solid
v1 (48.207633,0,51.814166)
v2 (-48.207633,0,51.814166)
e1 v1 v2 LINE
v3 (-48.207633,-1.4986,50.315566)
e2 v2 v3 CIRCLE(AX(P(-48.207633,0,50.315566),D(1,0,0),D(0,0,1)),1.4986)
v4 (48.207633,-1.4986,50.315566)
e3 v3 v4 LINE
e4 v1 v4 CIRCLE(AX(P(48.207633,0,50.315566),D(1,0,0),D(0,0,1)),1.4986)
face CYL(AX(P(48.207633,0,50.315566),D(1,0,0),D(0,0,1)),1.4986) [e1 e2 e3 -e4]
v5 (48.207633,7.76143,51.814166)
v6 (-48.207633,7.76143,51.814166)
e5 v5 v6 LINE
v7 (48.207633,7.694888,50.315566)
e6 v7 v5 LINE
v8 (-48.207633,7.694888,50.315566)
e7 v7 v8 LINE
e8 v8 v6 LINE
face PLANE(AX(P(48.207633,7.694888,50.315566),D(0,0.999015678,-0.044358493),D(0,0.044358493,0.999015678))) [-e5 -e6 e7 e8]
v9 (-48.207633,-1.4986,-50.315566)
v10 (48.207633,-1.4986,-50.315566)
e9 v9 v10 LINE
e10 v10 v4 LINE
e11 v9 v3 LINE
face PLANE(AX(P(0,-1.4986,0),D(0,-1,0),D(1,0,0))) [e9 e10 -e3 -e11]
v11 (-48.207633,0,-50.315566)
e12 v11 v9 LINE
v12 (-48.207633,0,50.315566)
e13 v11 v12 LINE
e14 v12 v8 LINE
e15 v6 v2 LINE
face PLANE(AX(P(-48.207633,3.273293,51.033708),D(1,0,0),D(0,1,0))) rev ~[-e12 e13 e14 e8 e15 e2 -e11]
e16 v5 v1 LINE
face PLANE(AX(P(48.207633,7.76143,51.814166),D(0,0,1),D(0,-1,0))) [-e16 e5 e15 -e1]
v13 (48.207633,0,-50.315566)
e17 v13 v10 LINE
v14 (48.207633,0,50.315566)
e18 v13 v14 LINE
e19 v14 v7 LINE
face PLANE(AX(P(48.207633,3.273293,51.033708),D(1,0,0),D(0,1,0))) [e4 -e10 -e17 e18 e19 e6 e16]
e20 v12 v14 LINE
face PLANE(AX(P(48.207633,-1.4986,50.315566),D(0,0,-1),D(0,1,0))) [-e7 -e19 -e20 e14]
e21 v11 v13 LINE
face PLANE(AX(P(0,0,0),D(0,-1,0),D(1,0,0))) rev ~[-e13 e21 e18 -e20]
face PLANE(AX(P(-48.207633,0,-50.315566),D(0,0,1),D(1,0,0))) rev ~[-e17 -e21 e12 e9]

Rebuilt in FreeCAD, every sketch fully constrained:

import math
import FreeCAD as App
import Part
import Sketcher
Q = App.Units.Quantity

doc = App.newDocument("Part")
body = doc.addObject("PartDesign::Body", "Body")

# Sketch on XZ plane
sketch1 = doc.addObject("Sketcher::SketchObject", "Sketch")
body.addObject(sketch1)
sketch1.AttachmentSupport = (doc.XZ_Plane, [""])
sketch1.MapMode = "FlatFace"
sketch1.addGeometry([
    Part.LineSegment(App.Vector(-48, 50, 0), App.Vector(-48, -50, 0)),
    Part.LineSegment(App.Vector(-48, -50, 0), App.Vector(48, -50, 0)),
    Part.LineSegment(App.Vector(48, -50, 0), App.Vector(48, 50, 0)),
    Part.LineSegment(App.Vector(48, 50, 0), App.Vector(-48, 50, 0)),
], False)
sketch1.addConstraint([
    Sketcher.Constraint("Coincident", 0, 2, 1, 1),
    Sketcher.Constraint("Coincident", 1, 2, 2, 1),
    Sketcher.Constraint("Coincident", 2, 2, 3, 1),
    Sketcher.Constraint("Coincident", 3, 2, 0, 1),
    Sketcher.Constraint("Vertical", 0),
    Sketcher.Constraint("Horizontal", 1),
    Sketcher.Constraint("Vertical", 2),
    Sketcher.Constraint("Horizontal", 3),
    Sketcher.Constraint("Symmetric", 0, 2, 2, 2, -1, 1),
    Sketcher.Constraint("DistanceX", 1, 1, 1, 2, Q("96.415266 mm")),
    Sketcher.Constraint("DistanceY", 0, 2, 0, 1, Q("100.631133 mm")),
])
pad1 = doc.addObject("PartDesign::Pad", "Pad")
body.addObject(pad1)
pad1.Profile = sketch1
pad1.Length = Q("0.059 in")

# Sketch on YZ plane
sketch2 = doc.addObject("Sketcher::SketchObject", "Sketch001")
body.addObject(sketch2)
sketch2.AttachmentSupport = (doc.YZ_Plane, [""])
sketch2.MapMode = "FlatFace"
sketch2.AttachmentOffset = App.Placement(App.Vector(0, 0, 48.207633), App.Rotation())
sketch2.addGeometry([
    Part.LineSegment(App.Vector(7.8, 51.8, 0), App.Vector(0, 51.8, 0)),
    Part.ArcOfCircle(Part.Circle(App.Vector(0, 50.3, 0), App.Vector(0, 0, 1), 1.5), math.radians(90), math.radians(180)),
    Part.LineSegment(App.Vector(-1.5, 50.3, 0), App.Vector(7.7, 50.3, 0)),
    Part.LineSegment(App.Vector(7.7, 50.3, 0), App.Vector(7.8, 51.8, 0)),
], False)
sketch2.addConstraint([
    Sketcher.Constraint("Tangent", 0, 2, 1, 1),
    Sketcher.Constraint("Coincident", 1, 2, 2, 1),
    Sketcher.Constraint("Coincident", 2, 2, 3, 1),
    Sketcher.Constraint("Coincident", 3, 2, 0, 1),
    Sketcher.Constraint("Horizontal", 0),
    Sketcher.Constraint("Horizontal", 2),
    Sketcher.Constraint("PointOnObject", 1, 3, -2),
    Sketcher.Constraint("Radius", 1, Q("0.059 in")),
    Sketcher.Constraint("DistanceY", 1, 2, 0, 2, Q("0.059 in")),
    Sketcher.Constraint("DistanceX", 0, 2, 0, 1, Q("7.76143 mm")),
    Sketcher.Constraint("DistanceX", 2, 1, 2, 2, Q("9.193488 mm")),
    Sketcher.Constraint("DistanceY", -1, 1, 1, 3, Q("50.315566 mm")),
])
pad2 = doc.addObject("PartDesign::Pad", "Pad001")
body.addObject(pad2)
pad2.Profile = sketch2
pad2.Length = 96.415266
pad2.Reversed = True

doc.recompute()
